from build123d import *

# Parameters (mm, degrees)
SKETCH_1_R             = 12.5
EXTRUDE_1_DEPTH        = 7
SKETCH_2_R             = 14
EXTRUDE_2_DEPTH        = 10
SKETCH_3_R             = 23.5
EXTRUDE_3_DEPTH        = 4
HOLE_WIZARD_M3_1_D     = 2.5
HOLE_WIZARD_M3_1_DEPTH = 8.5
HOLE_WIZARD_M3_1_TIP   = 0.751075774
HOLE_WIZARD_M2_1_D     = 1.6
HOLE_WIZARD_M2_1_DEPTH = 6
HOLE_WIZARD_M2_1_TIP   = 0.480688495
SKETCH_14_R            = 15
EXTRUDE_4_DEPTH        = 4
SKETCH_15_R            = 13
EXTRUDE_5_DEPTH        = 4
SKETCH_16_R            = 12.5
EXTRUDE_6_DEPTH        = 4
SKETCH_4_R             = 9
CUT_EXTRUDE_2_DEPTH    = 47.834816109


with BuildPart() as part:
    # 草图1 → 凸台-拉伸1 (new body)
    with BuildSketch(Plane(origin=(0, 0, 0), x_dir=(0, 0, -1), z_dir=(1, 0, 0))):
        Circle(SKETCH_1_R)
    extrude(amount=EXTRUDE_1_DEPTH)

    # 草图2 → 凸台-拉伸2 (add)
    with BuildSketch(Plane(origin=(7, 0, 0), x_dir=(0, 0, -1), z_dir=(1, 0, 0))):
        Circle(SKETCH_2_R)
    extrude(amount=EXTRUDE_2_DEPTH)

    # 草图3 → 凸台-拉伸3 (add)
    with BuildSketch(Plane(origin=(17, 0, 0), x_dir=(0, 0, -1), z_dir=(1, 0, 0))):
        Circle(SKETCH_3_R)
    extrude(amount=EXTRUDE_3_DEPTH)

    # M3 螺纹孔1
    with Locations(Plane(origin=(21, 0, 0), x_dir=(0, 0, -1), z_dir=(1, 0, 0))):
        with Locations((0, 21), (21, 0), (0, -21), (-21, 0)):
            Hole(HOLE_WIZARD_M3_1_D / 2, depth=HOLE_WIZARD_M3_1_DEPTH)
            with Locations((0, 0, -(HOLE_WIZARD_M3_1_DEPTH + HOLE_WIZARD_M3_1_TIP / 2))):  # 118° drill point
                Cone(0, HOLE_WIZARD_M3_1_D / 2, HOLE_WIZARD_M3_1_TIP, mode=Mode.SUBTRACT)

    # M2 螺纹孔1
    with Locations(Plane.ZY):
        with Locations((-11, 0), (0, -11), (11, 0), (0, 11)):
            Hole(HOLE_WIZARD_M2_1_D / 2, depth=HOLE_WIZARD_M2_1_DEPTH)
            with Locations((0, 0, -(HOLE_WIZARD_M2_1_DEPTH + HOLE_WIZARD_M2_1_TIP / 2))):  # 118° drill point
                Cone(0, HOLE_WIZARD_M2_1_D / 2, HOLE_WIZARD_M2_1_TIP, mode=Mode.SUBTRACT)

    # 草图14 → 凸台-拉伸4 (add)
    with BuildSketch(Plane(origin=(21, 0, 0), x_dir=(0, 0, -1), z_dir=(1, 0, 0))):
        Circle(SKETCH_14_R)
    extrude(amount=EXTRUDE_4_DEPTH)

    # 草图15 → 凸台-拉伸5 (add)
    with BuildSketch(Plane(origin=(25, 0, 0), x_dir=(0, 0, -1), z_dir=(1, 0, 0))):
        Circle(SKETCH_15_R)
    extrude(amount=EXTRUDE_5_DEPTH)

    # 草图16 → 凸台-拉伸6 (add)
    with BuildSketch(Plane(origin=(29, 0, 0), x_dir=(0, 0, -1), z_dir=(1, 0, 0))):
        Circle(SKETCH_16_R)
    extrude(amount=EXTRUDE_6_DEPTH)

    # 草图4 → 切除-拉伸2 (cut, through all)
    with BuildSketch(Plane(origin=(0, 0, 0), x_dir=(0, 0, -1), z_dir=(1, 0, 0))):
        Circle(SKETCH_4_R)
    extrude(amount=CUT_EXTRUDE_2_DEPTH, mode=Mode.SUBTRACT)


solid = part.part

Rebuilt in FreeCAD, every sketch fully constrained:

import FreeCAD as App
import Part
import Sketcher

V = App.Vector

doc = App.newDocument("Part")
params = doc.addObject("Spreadsheet::Sheet", "Params")
for row, (alias, value) in enumerate([
    ("sketch1_diameter", "25 mm"),
    ("pad1_length", "7 mm"),
    ("sketch2_diameter", "28 mm"),
    ("pad2_length", "10 mm"),
    ("sketch3_diameter", "47 mm"),
    ("pad3_length", "4 mm"),
    ("sketch4_diameter", "2.5 mm"),
    ("hole_diameter", "2.5 mm"),
    ("hole_depth", "8.5 mm"),
    ("sketch5_diameter", "1.6 mm"),
    ("hole2_diameter", "1.6 mm"),
    ("hole2_depth", "6 mm"),
    ("sketch6_diameter", "30 mm"),
    ("pad4_length", "4 mm"),
    ("sketch7_diameter", "26 mm"),
    ("pad5_length", "4 mm"),
    ("sketch8_diameter", "25 mm"),
    ("pad6_length", "4 mm"),
    ("sketch9_diameter", "18 mm"),
], start=1):
    params.set(f"A{row}", alias)
    params.set(f"B{row}", "=" + value)
    params.setAlias(f"B{row}", alias)

body = doc.addObject("PartDesign::Body", "Body")

sketch1 = body.newObject("Sketcher::SketchObject", "Sketch")
sketch1.AttachmentSupport = (doc.getObject("YZ_Plane"), [""])
sketch1.MapMode = "FlatFace"
sketch1.addGeometry(Part.Circle(V(0, 0, 0), V(0, 0, 1), 12), False)
sketch1.addConstraint([
    Sketcher.Constraint("Coincident", 0, 3, -1, 1),
    Sketcher.Constraint("Diameter", 0, 25.0),
])
sketch1.setExpression("Constraints[1]", "Params.sketch1_diameter")
pad1 = body.newObject("PartDesign::Pad", "Pad")
pad1.Profile = sketch1
pad1.setExpression("Length", "Params.pad1_length")

sketch2 = body.newObject("Sketcher::SketchObject", "Sketch001")
sketch2.AttachmentSupport = (doc.getObject("YZ_Plane"), [""])
sketch2.MapMode = "FlatFace"
sketch2.AttachmentOffset = App.Placement(V(0, 0, 7), App.Rotation())
sketch2.addGeometry(Part.Circle(V(0, 0, 0), V(0, 0, 1), 14), False)
sketch2.addConstraint([
    Sketcher.Constraint("Coincident", 0, 3, -1, 1),
    Sketcher.Constraint("Diameter", 0, 28.0),
])
sketch2.setExpression("Constraints[1]", "Params.sketch2_diameter")
pad2 = body.newObject("PartDesign::Pad", "Pad001")
pad2.Profile = sketch2
pad2.setExpression("Length", "Params.pad2_length")

sketch3 = body.newObject("Sketcher::SketchObject", "Sketch002")
sketch3.AttachmentSupport = (doc.getObject("YZ_Plane"), [""])
sketch3.MapMode = "FlatFace"
sketch3.AttachmentOffset = App.Placement(V(0, 0, 17), App.Rotation())
sketch3.addGeometry(Part.Circle(V(0, 0, 0), V(0, 0, 1), 24), False)
sketch3.addConstraint([
    Sketcher.Constraint("Coincident", 0, 3, -1, 1),
    Sketcher.Constraint("Diameter", 0, 47.0),
])
sketch3.setExpression("Constraints[1]", "Params.sketch3_diameter")
pad3 = body.newObject("PartDesign::Pad", "Pad002")
pad3.Profile = sketch3
pad3.setExpression("Length", "Params.pad3_length")

sketch4 = body.newObject("Sketcher::SketchObject", "Sketch003")
sketch4.AttachmentSupport = (doc.getObject("YZ_Plane"), [""])
sketch4.MapMode = "FlatFace"
sketch4.AttachmentOffset = App.Placement(V(0, 0, 21), App.Rotation())
sketch4.addGeometry([
    Part.Circle(V(21, 0, 0), V(0, 0, 1), 1.2),
    Part.Circle(V(0, -21, 0), V(0, 0, 1), 1.2),
    Part.Circle(V(-21, 0, 0), V(0, 0, 1), 1.2),
    Part.Circle(V(0, 21, 0), V(0, 0, 1), 1.2),
], False)
sketch4.addConstraint([
    Sketcher.Constraint("Equal", 0, 1),
    Sketcher.Constraint("Equal", 1, 2),
    Sketcher.Constraint("Equal", 2, 3),
    Sketcher.Constraint("Symmetric", 0, 3, 2, 3, -1, 1),
    Sketcher.Constraint("Symmetric", 1, 3, 3, 3, -1, 1),
    Sketcher.Constraint("PointOnObject", 0, 3, -1),
    Sketcher.Constraint("PointOnObject", 1, 3, -2),
    Sketcher.Constraint("Diameter", 0, 2.5),
    Sketcher.Constraint("DistanceX", -1, 1, 0, 3, 21.0),
    Sketcher.Constraint("DistanceY", 1, 3, -1, 1, 21.0),
])
sketch4.setExpression("Constraints[7]", "Params.sketch4_diameter")
doc.recompute()
hole = body.newObject("PartDesign::Hole", "Hole")
hole.Profile = sketch4
hole.ThreadType = "None"
hole.setExpression("Diameter", "Params.hole_diameter")
hole.DepthType = "Dimension"
hole.setExpression("Depth", "Params.hole_depth")
hole.DrillPoint = "Angled"
hole.DrillPointAngle = 118

sketch5 = body.newObject("Sketcher::SketchObject", "Sketch004")
sketch5.AttachmentSupport = (doc.getObject("YZ_Plane"), [""])
sketch5.MapMode = "FlatFace"
sketch5.addGeometry([
    Part.Circle(V(0, -11, 0), V(0, 0, 1), 0.8),
    Part.Circle(V(-11, 0, 0), V(0, 0, 1), 0.8),
    Part.Circle(V(0, 11, 0), V(0, 0, 1), 0.8),
    Part.Circle(V(11, 0, 0), V(0, 0, 1), 0.8),
], False)
sketch5.addConstraint([
    Sketcher.Constraint("Equal", 0, 1),
    Sketcher.Constraint("Equal", 1, 2),
    Sketcher.Constraint("Equal", 2, 3),
    Sketcher.Constraint("Symmetric", 0, 3, 2, 3, -1, 1),
    Sketcher.Constraint("Symmetric", 1, 3, 3, 3, -1, 1),
    Sketcher.Constraint("PointOnObject", 0, 3, -2),
    Sketcher.Constraint("PointOnObject", 1, 3, -1),
    Sketcher.Constraint("Diameter", 0, 1.6),
    Sketcher.Constraint("DistanceY", 0, 3, -1, 1, 11.0),
    Sketcher.Constraint("DistanceX", 1, 3, -1, 1, 11.0),
])
sketch5.setExpression("Constraints[7]", "Params.sketch5_diameter")
doc.recompute()
hole2 = body.newObject("PartDesign::Hole", "Hole001")
hole2.Profile = sketch5
hole2.ThreadType = "None"
hole2.setExpression("Diameter", "Params.hole2_diameter")
hole2.DepthType = "Dimension"
hole2.setExpression("Depth", "Params.hole2_depth")
hole2.DrillPoint = "Angled"
hole2.DrillPointAngle = 118
hole2.Reversed = True

sketch6 = body.newObject("Sketcher::SketchObject", "Sketch005")
sketch6.AttachmentSupport = (doc.getObject("YZ_Plane"), [""])
sketch6.MapMode = "FlatFace"
sketch6.AttachmentOffset = App.Placement(V(0, 0, 21), App.Rotation())
sketch6.addGeometry(Part.Circle(V(0, 0, 0), V(0, 0, 1), 15), False)
sketch6.addConstraint([
    Sketcher.Constraint("Coincident", 0, 3, -1, 1),
    Sketcher.Constraint("Diameter", 0, 30.0),
])
sketch6.setExpression("Constraints[1]", "Params.sketch6_diameter")
pad4 = body.newObject("PartDesign::Pad", "Pad003")
pad4.Profile = sketch6
pad4.setExpression("Length", "Params.pad4_length")

sketch7 = body.newObject("Sketcher::SketchObject", "Sketch006")
sketch7.AttachmentSupport = (doc.getObject("YZ_Plane"), [""])
sketch7.MapMode = "FlatFace"
sketch7.AttachmentOffset = App.Placement(V(0, 0, 25), App.Rotation())
sketch7.addGeometry(Part.Circle(V(0, 0, 0), V(0, 0, 1), 13), False)
sketch7.addConstraint([
    Sketcher.Constraint("Coincident", 0, 3, -1, 1),
    Sketcher.Constraint("Diameter", 0, 26.0),
])
sketch7.setExpression("Constraints[1]", "Params.sketch7_diameter")
pad5 = body.newObject("PartDesign::Pad", "Pad004")
pad5.Profile = sketch7
pad5.setExpression("Length", "Params.pad5_length")

sketch8 = body.newObject("Sketcher::SketchObject", "Sketch007")
sketch8.AttachmentSupport = (doc.getObject("YZ_Plane"), [""])
sketch8.MapMode = "FlatFace"
sketch8.AttachmentOffset = App.Placement(V(0, 0, 29), App.Rotation())
sketch8.addGeometry(Part.Circle(V(0, 0, 0), V(0, 0, 1), 12), False)
sketch8.addConstraint([
    Sketcher.Constraint("Coincident", 0, 3, -1, 1),
    Sketcher.Constraint("Diameter", 0, 25.0),
])
sketch8.setExpression("Constraints[1]", "Params.sketch8_diameter")
pad6 = body.newObject("PartDesign::Pad", "Pad005")
pad6.Profile = sketch8
pad6.setExpression("Length", "Params.pad6_length")

sketch9 = body.newObject("Sketcher::SketchObject", "Sketch008")
sketch9.AttachmentSupport = (doc.getObject("YZ_Plane"), [""])
sketch9.MapMode = "FlatFace"
sketch9.addGeometry(Part.Circle(V(0, 0, 0), V(0, 0, 1), 9), False)
sketch9.addConstraint([
    Sketcher.Constraint("Coincident", 0, 3, -1, 1),
    Sketcher.Constraint("Diameter", 0, 18.0),
])
sketch9.setExpression("Constraints[1]", "Params.sketch9_diameter")
pocket1 = body.newObject("PartDesign::Pocket", "Pocket")
pocket1.Profile = sketch9
pocket1.Type = "ThroughAll"
pocket1.Reversed = True

doc.recompute()
